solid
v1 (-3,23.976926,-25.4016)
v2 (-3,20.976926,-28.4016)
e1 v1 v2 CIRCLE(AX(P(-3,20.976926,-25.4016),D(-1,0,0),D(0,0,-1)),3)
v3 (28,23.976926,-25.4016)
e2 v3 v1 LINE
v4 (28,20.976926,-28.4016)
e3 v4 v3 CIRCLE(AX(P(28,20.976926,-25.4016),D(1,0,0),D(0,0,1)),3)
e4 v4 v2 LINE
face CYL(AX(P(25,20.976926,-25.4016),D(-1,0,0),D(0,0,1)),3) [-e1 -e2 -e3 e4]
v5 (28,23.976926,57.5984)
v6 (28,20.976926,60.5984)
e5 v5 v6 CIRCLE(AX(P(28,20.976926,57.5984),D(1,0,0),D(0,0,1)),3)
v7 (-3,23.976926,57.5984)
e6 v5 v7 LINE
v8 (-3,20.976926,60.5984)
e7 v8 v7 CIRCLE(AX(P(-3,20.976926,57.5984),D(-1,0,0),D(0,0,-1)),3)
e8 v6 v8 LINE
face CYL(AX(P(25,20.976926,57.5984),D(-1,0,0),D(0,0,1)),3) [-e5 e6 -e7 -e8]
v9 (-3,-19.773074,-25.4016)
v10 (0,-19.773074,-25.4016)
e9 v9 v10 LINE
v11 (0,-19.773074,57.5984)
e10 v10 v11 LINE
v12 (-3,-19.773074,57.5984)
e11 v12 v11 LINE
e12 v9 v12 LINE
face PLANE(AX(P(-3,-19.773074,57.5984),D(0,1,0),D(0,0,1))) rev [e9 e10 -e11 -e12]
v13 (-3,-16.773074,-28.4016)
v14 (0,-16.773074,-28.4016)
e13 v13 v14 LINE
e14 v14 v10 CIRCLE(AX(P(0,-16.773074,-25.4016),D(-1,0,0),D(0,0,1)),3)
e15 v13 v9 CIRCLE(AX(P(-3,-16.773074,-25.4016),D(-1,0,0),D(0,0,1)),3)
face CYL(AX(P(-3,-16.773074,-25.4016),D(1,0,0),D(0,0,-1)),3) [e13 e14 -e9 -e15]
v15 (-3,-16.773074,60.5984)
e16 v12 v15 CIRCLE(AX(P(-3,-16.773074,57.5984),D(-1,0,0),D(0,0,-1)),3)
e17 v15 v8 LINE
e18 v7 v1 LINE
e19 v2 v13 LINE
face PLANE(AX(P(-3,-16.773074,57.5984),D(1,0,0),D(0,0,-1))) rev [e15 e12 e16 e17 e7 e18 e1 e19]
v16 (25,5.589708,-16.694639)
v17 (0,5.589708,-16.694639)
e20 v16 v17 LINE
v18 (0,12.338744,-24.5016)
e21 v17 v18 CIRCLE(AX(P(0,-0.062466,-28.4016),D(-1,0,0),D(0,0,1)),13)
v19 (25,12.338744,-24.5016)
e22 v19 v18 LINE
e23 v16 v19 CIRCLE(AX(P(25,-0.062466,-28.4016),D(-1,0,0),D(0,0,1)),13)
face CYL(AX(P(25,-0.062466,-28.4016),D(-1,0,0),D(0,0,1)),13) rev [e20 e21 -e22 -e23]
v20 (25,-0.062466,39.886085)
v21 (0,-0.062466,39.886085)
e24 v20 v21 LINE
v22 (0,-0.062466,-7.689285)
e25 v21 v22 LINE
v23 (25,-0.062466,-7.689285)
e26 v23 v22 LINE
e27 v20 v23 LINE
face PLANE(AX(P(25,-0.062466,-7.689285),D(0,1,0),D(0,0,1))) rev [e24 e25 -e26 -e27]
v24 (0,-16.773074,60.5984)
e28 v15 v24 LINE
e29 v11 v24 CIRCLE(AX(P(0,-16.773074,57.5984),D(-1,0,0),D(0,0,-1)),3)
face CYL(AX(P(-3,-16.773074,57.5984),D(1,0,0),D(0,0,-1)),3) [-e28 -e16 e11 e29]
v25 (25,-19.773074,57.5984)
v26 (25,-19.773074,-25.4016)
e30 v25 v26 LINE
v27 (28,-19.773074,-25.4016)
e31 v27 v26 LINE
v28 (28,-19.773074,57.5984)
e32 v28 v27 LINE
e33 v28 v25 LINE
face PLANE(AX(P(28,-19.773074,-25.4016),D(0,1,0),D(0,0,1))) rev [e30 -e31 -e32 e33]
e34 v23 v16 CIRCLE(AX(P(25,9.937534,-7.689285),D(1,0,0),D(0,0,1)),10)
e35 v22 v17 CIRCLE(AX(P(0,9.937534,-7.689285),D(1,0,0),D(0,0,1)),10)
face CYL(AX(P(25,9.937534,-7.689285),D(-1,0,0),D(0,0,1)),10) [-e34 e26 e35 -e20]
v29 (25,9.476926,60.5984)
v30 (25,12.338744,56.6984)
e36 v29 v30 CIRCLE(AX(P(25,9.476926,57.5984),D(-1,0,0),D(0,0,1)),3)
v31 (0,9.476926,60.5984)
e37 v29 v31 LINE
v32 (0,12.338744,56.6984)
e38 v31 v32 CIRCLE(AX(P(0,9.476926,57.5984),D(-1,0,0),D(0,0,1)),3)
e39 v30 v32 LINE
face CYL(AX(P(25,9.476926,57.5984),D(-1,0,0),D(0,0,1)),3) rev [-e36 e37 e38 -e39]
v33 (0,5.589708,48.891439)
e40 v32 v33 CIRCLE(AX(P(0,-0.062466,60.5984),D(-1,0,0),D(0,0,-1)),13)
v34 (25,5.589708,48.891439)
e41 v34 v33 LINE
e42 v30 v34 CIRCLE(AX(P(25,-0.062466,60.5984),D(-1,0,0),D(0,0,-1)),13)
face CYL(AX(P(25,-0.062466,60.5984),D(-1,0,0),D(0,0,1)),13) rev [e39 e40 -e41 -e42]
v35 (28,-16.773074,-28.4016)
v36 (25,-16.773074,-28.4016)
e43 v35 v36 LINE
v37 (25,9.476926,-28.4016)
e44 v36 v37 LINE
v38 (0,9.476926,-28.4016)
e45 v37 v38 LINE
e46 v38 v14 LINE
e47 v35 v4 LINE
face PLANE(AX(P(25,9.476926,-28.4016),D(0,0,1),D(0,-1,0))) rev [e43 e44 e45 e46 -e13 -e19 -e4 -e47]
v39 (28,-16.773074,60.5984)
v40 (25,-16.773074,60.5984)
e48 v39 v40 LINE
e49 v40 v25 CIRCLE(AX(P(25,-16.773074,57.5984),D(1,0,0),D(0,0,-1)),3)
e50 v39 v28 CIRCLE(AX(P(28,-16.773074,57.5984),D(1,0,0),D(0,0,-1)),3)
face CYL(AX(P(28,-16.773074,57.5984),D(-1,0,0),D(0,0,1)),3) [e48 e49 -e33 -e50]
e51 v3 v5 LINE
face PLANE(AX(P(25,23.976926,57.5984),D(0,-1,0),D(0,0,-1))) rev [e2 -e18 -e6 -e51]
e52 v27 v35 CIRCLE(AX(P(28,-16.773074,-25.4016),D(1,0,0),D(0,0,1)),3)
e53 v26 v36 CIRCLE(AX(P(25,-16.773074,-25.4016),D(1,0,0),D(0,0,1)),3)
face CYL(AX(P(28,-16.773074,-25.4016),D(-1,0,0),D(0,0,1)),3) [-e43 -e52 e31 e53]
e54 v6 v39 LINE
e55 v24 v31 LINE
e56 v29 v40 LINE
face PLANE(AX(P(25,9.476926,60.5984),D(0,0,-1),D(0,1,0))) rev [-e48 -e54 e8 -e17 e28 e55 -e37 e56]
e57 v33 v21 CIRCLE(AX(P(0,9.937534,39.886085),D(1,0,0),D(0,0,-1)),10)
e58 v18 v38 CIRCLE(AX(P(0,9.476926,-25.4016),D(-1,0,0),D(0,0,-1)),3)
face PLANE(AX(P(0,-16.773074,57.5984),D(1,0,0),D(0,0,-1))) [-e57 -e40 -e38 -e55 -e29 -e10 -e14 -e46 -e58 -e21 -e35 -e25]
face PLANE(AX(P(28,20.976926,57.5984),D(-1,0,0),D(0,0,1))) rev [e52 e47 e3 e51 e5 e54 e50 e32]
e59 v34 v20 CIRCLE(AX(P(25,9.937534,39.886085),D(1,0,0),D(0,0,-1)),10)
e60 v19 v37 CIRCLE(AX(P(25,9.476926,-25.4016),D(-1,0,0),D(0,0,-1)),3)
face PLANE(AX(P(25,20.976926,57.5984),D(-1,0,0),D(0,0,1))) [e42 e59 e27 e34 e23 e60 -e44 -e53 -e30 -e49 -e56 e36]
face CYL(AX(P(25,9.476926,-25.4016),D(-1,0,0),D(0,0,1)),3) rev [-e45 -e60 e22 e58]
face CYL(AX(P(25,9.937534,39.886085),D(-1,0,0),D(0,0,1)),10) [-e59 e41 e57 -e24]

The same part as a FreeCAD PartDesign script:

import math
import FreeCAD as App
import Part
import Sketcher
from FreeCAD import Vector
Q = App.Units.Quantity

doc = App.newDocument("Part")
body = doc.addObject("PartDesign::Body", "Body")

# Sketch on YZ plane
sketch1 = body.newObject("Sketcher::SketchObject", "Sketch")
sketch1.AttachmentSupport = (doc.getObject("YZ_Plane"), [""])
sketch1.MapMode = "FlatFace"
sketch1.addGeometry([
    Part.ArcOfCircle(Part.Circle(Vector(9.9, 39.9, 0), Vector(0, 0, 1), 10), math.radians(116), math.radians(180)),  # 0
    Part.LineSegment(Vector(-0.1, 39.9, 0), Vector(-0.1, -7.7, 0)),  # 1
    Part.ArcOfCircle(Part.Circle(Vector(9.9, -7.7, 0), Vector(0, 0, 1), 10), math.radians(-180), math.radians(-116)),  # 2
    Part.ArcOfCircle(Part.Circle(Vector(-0.1, -28.4, 0), Vector(0, 0, 1), 13), math.radians(17), math.radians(64)),  # 3
    Part.ArcOfCircle(Part.Circle(Vector(9.5, -25.4, 0), Vector(0, 0, 1), 3), math.radians(-90), math.radians(17)),  # 4
    Part.LineSegment(Vector(9.5, -28.4, 0), Vector(21, -28.4, 0)),  # 5
    Part.ArcOfCircle(Part.Circle(Vector(21, -25.4, 0), Vector(0, 0, 1), 3), math.radians(-90), math.radians(0)),  # 6
    Part.LineSegment(Vector(24, -25.4, 0), Vector(24, 57.6, 0)),  # 7
    Part.ArcOfCircle(Part.Circle(Vector(21, 57.6, 0), Vector(0, 0, 1), 3), math.radians(0), math.radians(90)),  # 8
    Part.LineSegment(Vector(21, 60.6, 0), Vector(9.5, 60.6, 0)),  # 9
    Part.ArcOfCircle(Part.Circle(Vector(9.5, 57.6, 0), Vector(0, 0, 1), 3), math.radians(-17), math.radians(90)),  # 10
    Part.ArcOfCircle(Part.Circle(Vector(-0.1, 60.6, 0), Vector(0, 0, 1), 13), math.radians(-64), math.radians(-17)),  # 11
], False)
sketch1.addConstraint([
    Sketcher.Constraint("Tangent", 0, 2, 1, 1),
    Sketcher.Constraint("Tangent", 1, 2, 2, 1),
    Sketcher.Constraint("Tangent", 2, 2, 3, 2),
    Sketcher.Constraint("Tangent", 3, 1, 4, 2),
    Sketcher.Constraint("Tangent", 4, 1, 5, 1),
    Sketcher.Constraint("Tangent", 5, 2, 6, 1),
    Sketcher.Constraint("Tangent", 6, 2, 7, 1),
    Sketcher.Constraint("Tangent", 7, 2, 8, 1),
    Sketcher.Constraint("Tangent", 8, 2, 9, 1),
    Sketcher.Constraint("Tangent", 9, 2, 10, 2),
    Sketcher.Constraint("Tangent", 10, 1, 11, 2),
    Sketcher.Constraint("Tangent", 11, 1, 0, 1),
    Sketcher.Constraint("Vertical", 1),
    Sketcher.Constraint("Horizontal", 5),
    Sketcher.Constraint("Vertical", 7),
    Sketcher.Constraint("Horizontal", 9),
    Sketcher.Constraint("Equal", 0, 2),
    Sketcher.Constraint("Equal", 4, 6),
    Sketcher.Constraint("Equal", 6, 8),
    Sketcher.Constraint("Equal", 8, 10),
    Sketcher.Constraint("Equal", 3, 11),
    Sketcher.Constraint("Horizontal", 3, 3, 4, 1),
    Sketcher.Constraint("Horizontal", 11, 3, 8, 2),
    Sketcher.Constraint("Vertical", 4, 3, 10, 3),
    Sketcher.Constraint("Vertical", 11, 3, 0, 2),
    Sketcher.Constraint("Radius", 0, Q("10 mm")),
    Sketcher.Constraint("Radius", 3, Q("13 mm")),
    Sketcher.Constraint("Radius", 4, Q("3 mm")),
    Sketcher.Constraint("DistanceY", 7, 1, 7, 2, Q("83 mm")),
    Sketcher.Constraint("DistanceX", 5, 1, 5, 2, Q("11.5 mm")),
    Sketcher.Constraint("DistanceY", 3, 3, -1, 1, Q("28.4016 mm")),
    Sketcher.Constraint("DistanceX", -1, 1, 0, 3, Q("9.937534 mm")),
])
pad1 = body.newObject("PartDesign::Pad", "Pad")
pad1.Profile = sketch1
pad1.Length = 25

# Sketch on YZ plane
sketch2 = body.newObject("Sketcher::SketchObject", "Sketch001")
sketch2.AttachmentSupport = (doc.getObject("YZ_Plane"), [""])
sketch2.MapMode = "FlatFace"
sketch2.addGeometry([
    Part.ArcOfCircle(Part.Circle(Vector(21, 57.6, 0), Vector(0, 0, 1), 3), math.radians(0), math.radians(90)),  # 0
    Part.LineSegment(Vector(24, 57.6, 0), Vector(24, -25.4, 0)),  # 1
    Part.ArcOfCircle(Part.Circle(Vector(21, -25.4, 0), Vector(0, 0, 1), 3), math.radians(-90), math.radians(0)),  # 2
    Part.LineSegment(Vector(21, -28.4, 0), Vector(-16.8, -28.4, 0)),  # 3
    Part.ArcOfCircle(Part.Circle(Vector(-16.8, -25.4, 0), Vector(0, 0, 1), 3), math.radians(180), math.radians(270)),  # 4
    Part.LineSegment(Vector(-19.8, -25.4, 0), Vector(-19.8, 57.6, 0)),  # 5
    Part.ArcOfCircle(Part.Circle(Vector(-16.8, 57.6, 0), Vector(0, 0, 1), 3), math.radians(90), math.radians(180)),  # 6
    Part.LineSegment(Vector(-16.8, 60.6, 0), Vector(21, 60.6, 0)),  # 7
], False)
sketch2.addConstraint([
    Sketcher.Constraint("Tangent", 0, 1, 1, 1),
    Sketcher.Constraint("Tangent", 1, 2, 2, 2),
    Sketcher.Constraint("Tangent", 2, 1, 3, 1),
    Sketcher.Constraint("Tangent", 3, 2, 4, 2),
    Sketcher.Constraint("Tangent", 4, 1, 5, 1),
    Sketcher.Constraint("Tangent", 5, 2, 6, 2),
    Sketcher.Constraint("Tangent", 6, 1, 7, 1),
    Sketcher.Constraint("Tangent", 7, 2, 0, 2),
    Sketcher.Constraint("Vertical", 1),
    Sketcher.Constraint("Horizontal", 3),
    Sketcher.Constraint("Vertical", 5),
    Sketcher.Constraint("Horizontal", 7),
    Sketcher.Constraint("Equal", 0, 2),
    Sketcher.Constraint("Equal", 2, 4),
    Sketcher.Constraint("Equal", 4, 6),
    Sketcher.Constraint("Radius", 0, Q("3 mm")),
    Sketcher.Constraint("DistanceY", 1, 2, 1, 1, Q("83 mm")),
    Sketcher.Constraint("DistanceX", 3, 2, 3, 1, Q("37.75 mm")),
    Sketcher.Constraint("DistanceY", -1, 1, 0, 3, Q("57.5984 mm")),
    Sketcher.Constraint("DistanceX", -1, 1, 0, 3, Q("20.976926 mm")),
])
pad2 = body.newObject("PartDesign::Pad", "Pad001")
pad2.Profile = sketch2
pad2.Length = 3
pad2.Reversed = True

# Sketch on YZ plane
sketch3 = body.newObject("Sketcher::SketchObject", "Sketch002")
sketch3.AttachmentSupport = (doc.getObject("YZ_Plane"), [""])
sketch3.MapMode = "FlatFace"
sketch3.AttachmentOffset = App.Placement(Vector(0, 0, 25), App.Rotation())
sketch3.addGeometry([
    Part.ArcOfCircle(Part.Circle(Vector(21, -25.4, 0), Vector(0, 0, 1), 3), math.radians(-90), math.radians(0)),  # 0
    Part.LineSegment(Vector(24, -25.4, 0), Vector(24, 57.6, 0)),  # 1
    Part.ArcOfCircle(Part.Circle(Vector(21, 57.6, 0), Vector(0, 0, 1), 3), math.radians(0), math.radians(90)),  # 2
    Part.LineSegment(Vector(21, 60.6, 0), Vector(-16.8, 60.6, 0)),  # 3
    Part.ArcOfCircle(Part.Circle(Vector(-16.8, 57.6, 0), Vector(0, 0, 1), 3), math.radians(90), math.radians(180)),  # 4
    Part.LineSegment(Vector(-19.8, 57.6, 0), Vector(-19.8, -25.4, 0)),  # 5
    Part.ArcOfCircle(Part.Circle(Vector(-16.8, -25.4, 0), Vector(0, 0, 1), 3), math.radians(180), math.radians(270)),  # 6
    Part.LineSegment(Vector(-16.8, -28.4, 0), Vector(21, -28.4, 0)),  # 7
], False)
sketch3.addConstraint([
    Sketcher.Constraint("Tangent", 0, 2, 1, 1),
    Sketcher.Constraint("Tangent", 1, 2, 2, 1),
    Sketcher.Constraint("Tangent", 2, 2, 3, 1),
    Sketcher.Constraint("Tangent", 3, 2, 4, 1),
    Sketcher.Constraint("Tangent", 4, 2, 5, 1),
    Sketcher.Constraint("Tangent", 5, 2, 6, 1),
    Sketcher.Constraint("Tangent", 6, 2, 7, 1),
    Sketcher.Constraint("Tangent", 7, 2, 0, 1),
    Sketcher.Constraint("Vertical", 1),
    Sketcher.Constraint("Horizontal", 3),
    Sketcher.Constraint("Vertical", 5),
    Sketcher.Constraint("Horizontal", 7),
    Sketcher.Constraint("Equal", 0, 2),
    Sketcher.Constraint("Equal", 2, 4),
    Sketcher.Constraint("Equal", 4, 6),
    Sketcher.Constraint("Radius", 0, Q("3 mm")),
    Sketcher.Constraint("DistanceY", 1, 1, 1, 2, Q("83 mm")),
    Sketcher.Constraint("DistanceX", 3, 2, 3, 1, Q("37.75 mm")),
    Sketcher.Constraint("DistanceY", 0, 3, -1, 1, Q("25.4016 mm")),
    Sketcher.Constraint("DistanceX", -1, 1, 0, 3, Q("20.976926 mm")),
])
pad3 = body.newObject("PartDesign::Pad", "Pad002")
pad3.Profile = sketch3
pad3.Length = 3

doc.recompute()
